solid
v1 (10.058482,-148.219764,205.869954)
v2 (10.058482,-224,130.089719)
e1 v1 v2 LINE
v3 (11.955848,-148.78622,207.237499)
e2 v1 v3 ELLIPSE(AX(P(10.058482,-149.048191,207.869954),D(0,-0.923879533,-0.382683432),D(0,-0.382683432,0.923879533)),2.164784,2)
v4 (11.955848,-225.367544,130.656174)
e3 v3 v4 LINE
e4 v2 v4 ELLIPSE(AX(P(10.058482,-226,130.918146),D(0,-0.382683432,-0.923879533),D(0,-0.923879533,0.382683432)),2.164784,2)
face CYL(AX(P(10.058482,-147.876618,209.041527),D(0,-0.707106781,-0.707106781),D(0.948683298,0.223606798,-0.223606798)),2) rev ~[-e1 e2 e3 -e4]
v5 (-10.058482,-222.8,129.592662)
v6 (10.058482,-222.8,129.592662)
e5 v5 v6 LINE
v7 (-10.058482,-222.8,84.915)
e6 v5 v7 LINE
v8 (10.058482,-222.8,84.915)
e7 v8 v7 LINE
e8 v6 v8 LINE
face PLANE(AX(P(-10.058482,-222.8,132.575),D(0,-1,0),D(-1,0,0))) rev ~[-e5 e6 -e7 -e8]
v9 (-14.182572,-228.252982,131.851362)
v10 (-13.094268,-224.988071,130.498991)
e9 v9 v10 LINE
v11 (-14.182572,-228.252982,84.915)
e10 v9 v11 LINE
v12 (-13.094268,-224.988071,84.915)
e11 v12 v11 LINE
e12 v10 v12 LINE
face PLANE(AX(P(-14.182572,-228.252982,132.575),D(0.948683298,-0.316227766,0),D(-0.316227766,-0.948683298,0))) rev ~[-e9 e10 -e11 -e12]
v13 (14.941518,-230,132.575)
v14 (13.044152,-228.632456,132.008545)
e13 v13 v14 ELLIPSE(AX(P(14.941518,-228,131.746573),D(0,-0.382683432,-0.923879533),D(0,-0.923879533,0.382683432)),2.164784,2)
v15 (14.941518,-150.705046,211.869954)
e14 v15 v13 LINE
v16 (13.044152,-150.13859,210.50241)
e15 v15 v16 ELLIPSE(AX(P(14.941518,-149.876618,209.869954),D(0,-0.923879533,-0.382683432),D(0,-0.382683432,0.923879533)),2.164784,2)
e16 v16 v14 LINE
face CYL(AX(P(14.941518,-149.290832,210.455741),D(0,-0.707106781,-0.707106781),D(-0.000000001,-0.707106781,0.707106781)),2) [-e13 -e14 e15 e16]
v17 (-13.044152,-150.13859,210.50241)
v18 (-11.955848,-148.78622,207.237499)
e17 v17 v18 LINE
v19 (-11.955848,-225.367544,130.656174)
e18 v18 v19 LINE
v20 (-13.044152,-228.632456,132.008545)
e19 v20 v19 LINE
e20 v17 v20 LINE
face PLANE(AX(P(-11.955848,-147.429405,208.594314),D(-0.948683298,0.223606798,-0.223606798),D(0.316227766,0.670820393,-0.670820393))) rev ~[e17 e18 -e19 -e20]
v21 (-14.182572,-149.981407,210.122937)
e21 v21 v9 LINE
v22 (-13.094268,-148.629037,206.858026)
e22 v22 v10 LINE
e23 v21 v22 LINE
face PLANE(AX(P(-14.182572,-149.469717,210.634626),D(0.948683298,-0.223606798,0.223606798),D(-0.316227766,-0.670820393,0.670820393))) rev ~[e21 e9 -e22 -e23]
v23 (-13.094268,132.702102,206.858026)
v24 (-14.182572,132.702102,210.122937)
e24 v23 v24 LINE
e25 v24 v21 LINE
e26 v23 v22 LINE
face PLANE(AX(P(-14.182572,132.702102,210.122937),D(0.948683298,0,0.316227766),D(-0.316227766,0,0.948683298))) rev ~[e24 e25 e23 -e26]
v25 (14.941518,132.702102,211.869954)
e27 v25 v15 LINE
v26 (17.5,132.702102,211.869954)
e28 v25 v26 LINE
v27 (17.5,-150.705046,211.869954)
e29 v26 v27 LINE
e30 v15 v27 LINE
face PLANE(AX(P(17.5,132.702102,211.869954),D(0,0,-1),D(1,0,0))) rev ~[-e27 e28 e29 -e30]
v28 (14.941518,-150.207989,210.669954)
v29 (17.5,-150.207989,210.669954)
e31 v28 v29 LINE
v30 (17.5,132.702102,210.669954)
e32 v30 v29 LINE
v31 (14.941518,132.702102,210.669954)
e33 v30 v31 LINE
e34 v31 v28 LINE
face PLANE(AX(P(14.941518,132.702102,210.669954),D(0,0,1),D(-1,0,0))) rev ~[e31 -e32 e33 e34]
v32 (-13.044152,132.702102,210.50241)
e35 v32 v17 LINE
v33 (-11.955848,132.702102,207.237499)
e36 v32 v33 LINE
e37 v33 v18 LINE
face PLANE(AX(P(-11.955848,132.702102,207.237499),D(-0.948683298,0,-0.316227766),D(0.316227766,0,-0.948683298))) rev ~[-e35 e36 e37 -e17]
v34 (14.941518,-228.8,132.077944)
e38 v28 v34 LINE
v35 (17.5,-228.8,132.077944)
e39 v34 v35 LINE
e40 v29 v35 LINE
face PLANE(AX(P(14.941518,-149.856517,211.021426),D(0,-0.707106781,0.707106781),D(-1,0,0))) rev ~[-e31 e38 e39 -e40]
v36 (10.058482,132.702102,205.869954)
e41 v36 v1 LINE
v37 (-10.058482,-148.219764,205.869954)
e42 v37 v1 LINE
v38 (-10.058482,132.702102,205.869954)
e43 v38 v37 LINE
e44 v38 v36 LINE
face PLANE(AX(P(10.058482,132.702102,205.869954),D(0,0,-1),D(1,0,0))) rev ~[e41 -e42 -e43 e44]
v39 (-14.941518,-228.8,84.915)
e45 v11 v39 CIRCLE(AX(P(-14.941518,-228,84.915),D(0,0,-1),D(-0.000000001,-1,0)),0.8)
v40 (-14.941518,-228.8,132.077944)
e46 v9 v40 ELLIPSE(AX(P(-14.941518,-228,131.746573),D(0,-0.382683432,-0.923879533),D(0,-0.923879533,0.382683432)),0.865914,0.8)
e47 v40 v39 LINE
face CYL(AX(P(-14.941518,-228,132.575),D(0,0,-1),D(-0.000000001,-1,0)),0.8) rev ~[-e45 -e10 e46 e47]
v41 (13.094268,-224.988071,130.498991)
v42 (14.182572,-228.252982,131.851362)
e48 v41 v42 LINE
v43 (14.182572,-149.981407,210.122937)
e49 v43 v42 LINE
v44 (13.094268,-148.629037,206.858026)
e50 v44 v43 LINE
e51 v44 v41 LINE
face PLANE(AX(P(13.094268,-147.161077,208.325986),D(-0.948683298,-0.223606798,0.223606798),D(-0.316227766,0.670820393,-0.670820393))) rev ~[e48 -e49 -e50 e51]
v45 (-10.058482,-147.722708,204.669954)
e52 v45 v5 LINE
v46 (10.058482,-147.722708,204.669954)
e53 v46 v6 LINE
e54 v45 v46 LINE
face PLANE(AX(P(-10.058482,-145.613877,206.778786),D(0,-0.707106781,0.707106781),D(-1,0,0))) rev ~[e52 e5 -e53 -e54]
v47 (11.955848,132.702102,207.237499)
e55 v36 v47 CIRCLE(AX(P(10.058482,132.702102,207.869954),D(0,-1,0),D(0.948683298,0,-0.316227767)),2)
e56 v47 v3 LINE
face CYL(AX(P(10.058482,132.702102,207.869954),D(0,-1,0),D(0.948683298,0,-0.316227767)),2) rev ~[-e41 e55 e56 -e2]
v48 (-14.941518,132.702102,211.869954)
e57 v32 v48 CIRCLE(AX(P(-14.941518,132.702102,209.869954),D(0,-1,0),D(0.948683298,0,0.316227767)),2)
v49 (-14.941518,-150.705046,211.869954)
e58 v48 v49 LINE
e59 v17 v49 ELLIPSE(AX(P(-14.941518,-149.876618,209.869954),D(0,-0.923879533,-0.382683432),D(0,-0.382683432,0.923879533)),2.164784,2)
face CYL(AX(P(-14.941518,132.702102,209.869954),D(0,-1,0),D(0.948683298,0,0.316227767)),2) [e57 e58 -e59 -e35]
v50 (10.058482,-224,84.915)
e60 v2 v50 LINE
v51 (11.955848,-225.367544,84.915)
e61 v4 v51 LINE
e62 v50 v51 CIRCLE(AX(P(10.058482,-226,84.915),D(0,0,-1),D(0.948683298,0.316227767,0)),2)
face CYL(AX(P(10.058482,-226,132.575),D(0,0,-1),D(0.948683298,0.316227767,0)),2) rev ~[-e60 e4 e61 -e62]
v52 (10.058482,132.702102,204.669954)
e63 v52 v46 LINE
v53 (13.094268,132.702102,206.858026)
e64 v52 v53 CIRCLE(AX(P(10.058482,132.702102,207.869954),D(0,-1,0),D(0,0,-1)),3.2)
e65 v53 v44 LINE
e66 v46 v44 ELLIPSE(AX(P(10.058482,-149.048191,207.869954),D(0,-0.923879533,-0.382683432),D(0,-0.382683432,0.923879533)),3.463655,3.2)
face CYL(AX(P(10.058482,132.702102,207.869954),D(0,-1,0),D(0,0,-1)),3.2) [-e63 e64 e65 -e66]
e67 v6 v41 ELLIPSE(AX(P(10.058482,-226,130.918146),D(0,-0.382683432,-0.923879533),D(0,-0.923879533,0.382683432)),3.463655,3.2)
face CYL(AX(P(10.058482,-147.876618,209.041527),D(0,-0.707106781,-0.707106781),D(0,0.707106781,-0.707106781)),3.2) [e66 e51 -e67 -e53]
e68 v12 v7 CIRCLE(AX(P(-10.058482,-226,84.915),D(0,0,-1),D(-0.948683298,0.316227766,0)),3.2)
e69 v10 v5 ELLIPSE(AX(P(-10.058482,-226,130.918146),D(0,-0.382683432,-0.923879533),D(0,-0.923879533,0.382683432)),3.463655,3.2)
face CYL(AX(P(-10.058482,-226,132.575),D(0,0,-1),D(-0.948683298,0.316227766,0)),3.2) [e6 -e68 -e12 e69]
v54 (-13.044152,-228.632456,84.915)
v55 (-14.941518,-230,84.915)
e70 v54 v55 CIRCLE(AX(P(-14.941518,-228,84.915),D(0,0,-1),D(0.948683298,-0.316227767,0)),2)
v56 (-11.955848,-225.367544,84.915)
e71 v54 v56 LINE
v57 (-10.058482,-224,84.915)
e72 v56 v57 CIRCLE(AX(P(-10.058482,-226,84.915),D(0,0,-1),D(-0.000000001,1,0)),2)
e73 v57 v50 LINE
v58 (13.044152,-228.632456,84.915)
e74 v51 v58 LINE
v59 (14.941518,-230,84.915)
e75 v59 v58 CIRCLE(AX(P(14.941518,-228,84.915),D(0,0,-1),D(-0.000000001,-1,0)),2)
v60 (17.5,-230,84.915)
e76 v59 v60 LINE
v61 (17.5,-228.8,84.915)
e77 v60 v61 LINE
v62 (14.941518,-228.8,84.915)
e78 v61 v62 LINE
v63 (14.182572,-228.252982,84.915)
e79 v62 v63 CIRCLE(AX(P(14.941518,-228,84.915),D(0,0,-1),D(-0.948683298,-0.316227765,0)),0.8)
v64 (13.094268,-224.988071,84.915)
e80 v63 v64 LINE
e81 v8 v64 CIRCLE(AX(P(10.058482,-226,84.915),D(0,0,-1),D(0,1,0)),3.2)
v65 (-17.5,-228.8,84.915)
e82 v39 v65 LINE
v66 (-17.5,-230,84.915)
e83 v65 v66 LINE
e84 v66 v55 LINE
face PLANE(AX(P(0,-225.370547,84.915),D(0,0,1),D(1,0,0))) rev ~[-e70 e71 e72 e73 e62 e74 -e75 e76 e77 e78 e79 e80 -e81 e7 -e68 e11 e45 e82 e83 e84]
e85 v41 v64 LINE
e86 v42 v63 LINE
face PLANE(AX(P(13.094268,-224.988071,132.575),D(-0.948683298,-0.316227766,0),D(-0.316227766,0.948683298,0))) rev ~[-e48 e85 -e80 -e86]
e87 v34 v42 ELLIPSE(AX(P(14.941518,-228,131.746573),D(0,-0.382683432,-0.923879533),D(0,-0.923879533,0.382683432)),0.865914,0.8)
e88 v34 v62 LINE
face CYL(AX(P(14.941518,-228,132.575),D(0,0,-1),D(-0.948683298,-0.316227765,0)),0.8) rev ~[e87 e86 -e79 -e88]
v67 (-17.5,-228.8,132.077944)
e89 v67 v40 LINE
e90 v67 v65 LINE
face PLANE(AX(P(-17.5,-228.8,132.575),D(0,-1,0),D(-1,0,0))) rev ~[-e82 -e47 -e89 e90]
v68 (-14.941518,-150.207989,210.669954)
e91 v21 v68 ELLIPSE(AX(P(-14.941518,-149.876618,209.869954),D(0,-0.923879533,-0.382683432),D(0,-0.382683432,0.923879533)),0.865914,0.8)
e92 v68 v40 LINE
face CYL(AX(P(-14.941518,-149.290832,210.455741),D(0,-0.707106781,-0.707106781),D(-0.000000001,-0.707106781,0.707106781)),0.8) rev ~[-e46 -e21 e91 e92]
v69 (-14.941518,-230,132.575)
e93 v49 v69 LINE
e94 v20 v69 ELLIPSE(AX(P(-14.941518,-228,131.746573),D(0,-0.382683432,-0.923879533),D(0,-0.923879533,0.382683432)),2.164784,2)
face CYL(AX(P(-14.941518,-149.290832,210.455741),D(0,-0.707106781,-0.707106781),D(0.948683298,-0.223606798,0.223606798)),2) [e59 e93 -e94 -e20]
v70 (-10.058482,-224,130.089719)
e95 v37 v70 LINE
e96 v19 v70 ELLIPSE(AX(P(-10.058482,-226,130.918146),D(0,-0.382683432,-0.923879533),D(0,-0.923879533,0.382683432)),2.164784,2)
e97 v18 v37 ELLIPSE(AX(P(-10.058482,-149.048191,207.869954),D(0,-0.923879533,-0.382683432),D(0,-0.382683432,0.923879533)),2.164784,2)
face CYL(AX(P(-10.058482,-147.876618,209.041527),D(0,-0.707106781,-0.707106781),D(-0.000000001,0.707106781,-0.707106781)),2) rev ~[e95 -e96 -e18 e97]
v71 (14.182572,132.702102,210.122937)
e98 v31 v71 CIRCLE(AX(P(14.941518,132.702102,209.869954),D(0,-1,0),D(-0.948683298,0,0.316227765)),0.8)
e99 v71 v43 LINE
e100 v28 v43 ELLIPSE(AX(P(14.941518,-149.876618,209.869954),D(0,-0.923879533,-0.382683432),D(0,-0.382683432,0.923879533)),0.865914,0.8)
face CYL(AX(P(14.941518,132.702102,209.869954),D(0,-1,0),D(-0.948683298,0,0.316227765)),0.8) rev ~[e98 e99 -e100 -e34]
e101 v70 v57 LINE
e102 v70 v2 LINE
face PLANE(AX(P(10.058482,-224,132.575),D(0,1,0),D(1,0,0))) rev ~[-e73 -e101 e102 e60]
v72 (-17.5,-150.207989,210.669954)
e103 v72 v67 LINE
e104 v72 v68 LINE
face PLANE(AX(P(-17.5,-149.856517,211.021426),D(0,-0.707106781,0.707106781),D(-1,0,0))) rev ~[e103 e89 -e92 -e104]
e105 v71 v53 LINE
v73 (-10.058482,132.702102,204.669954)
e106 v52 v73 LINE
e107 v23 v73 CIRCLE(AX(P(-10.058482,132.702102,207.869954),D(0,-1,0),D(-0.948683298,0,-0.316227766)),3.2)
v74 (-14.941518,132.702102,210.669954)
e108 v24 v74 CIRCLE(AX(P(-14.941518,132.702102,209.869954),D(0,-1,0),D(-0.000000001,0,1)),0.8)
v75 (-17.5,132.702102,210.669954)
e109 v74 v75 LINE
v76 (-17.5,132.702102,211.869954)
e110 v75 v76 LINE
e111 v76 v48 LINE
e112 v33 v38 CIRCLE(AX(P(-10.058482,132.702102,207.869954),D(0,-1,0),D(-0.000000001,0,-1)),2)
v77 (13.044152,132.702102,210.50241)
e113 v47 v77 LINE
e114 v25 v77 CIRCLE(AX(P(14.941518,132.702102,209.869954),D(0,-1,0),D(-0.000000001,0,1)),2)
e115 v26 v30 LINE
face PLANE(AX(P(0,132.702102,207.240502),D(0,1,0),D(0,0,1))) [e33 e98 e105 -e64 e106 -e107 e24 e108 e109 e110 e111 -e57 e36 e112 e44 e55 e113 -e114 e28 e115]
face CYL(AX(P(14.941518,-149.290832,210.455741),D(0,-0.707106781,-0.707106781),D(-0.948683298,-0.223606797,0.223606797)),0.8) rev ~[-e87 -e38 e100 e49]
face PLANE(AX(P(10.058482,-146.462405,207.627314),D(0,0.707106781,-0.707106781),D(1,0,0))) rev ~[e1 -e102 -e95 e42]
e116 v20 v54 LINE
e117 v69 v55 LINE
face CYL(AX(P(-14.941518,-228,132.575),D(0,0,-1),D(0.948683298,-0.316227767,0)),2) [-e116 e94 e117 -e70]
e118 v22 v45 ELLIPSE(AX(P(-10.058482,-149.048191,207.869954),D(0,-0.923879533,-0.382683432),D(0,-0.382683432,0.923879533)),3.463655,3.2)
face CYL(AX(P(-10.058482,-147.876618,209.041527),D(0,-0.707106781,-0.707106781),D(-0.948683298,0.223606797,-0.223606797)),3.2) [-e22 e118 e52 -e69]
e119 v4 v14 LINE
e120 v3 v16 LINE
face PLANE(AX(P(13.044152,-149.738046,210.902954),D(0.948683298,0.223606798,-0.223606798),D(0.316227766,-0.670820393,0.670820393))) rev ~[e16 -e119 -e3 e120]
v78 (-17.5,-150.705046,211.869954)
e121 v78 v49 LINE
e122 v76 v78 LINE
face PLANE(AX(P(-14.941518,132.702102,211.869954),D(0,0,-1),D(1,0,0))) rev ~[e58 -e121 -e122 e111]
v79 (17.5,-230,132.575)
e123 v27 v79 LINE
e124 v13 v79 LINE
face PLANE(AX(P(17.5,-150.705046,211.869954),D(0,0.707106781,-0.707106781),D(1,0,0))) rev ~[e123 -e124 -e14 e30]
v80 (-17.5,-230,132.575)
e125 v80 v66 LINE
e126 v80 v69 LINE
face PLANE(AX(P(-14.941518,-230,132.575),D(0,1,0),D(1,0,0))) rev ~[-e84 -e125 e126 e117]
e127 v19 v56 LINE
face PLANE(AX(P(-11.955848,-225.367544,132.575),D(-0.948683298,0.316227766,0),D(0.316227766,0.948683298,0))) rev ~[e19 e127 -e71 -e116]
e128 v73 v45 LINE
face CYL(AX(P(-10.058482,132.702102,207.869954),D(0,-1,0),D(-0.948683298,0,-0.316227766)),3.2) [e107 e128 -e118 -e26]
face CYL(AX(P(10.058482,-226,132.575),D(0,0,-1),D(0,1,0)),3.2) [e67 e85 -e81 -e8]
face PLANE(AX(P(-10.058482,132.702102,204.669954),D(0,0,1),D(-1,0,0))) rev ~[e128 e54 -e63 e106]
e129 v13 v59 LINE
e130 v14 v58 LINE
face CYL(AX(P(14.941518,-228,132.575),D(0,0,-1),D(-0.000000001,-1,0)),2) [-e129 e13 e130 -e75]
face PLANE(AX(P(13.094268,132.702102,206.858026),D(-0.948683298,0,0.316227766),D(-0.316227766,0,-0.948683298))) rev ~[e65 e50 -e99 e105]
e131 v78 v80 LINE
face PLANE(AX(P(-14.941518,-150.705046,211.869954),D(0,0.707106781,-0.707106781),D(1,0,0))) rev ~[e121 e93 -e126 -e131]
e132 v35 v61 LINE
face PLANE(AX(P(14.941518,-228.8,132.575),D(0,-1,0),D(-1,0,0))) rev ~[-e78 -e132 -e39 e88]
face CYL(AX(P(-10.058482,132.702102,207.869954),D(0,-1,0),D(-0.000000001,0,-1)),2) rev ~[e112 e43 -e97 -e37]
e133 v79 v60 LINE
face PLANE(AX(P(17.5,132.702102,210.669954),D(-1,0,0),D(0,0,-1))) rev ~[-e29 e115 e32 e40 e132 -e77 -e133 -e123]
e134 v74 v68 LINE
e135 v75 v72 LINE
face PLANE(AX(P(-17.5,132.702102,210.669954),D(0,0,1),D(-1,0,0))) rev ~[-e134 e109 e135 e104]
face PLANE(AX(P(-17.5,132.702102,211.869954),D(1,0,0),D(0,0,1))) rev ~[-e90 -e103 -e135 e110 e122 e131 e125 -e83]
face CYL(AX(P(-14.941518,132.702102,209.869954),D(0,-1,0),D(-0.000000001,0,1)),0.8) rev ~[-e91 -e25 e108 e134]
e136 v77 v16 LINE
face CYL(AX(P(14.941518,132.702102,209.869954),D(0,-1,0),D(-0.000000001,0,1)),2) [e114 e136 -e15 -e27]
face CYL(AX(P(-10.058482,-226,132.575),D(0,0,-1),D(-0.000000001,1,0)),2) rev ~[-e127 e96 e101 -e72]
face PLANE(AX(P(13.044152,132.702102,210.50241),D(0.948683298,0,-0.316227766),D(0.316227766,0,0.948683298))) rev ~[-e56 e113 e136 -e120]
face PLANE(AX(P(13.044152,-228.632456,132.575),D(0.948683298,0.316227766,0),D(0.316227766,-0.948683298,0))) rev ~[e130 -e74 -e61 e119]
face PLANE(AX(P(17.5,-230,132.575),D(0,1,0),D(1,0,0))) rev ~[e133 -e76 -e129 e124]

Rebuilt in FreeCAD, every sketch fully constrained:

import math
import FreeCAD as App
import Part
import Sketcher
from FreeCAD import Vector
Q = App.Units.Quantity

doc = App.newDocument("Part")
params = doc.addObject("Spreadsheet::Sheet", "Params")
for row, (alias, value) in enumerate([
    ("sketch1_radius", "2 mm"),
    ("sketch1_radius2", "0.8 mm"),
    ("sketch2_height", "47.66 mm"),
    ("sketch2_length", "112.14 mm"),
], start=1):
    params.set(f"A{row}", alias)
    params.set(f"B{row}", "=" + value)
    params.setAlias(f"B{row}", alias)

body = doc.addObject("PartDesign::Body", "Body")

sketch1 = doc.addObject("Sketcher::SketchObject", "Sketch")
body.addObject(sketch1)
sketch1.AttachmentSupport = (doc.XZ_Plane, [""])
sketch1.MapMode = "FlatFace"
sketch1.AttachmentOffset = App.Placement(Vector(0, 0, -132.702102), App.Rotation())
sketch1.addGeometry(Part.LineSegment(Vector(14.9, 211.9, 0), Vector(17.5, 211.9, 0)), False)
sketch1.addGeometry(Part.LineSegment(Vector(17.5, 211.9, 0), Vector(17.5, 210.7, 0)), False)
sketch1.addGeometry(Part.LineSegment(Vector(17.5, 210.7, 0), Vector(14.9, 210.7, 0)), False)
sketch1.addGeometry(Part.ArcOfCircle(Part.Circle(Vector(14.9, 209.9, 0), Vector(0, 0, 1), 0.8), math.radians(90), math.radians(162)), False)
sketch1.addGeometry(Part.LineSegment(Vector(14.2, 210.1, 0), Vector(13.1, 206.9, 0)), False)
sketch1.addGeometry(Part.ArcOfCircle(Part.Circle(Vector(10.1, 207.9, 0), Vector(0, 0, 1), 3.2), math.radians(-90), math.radians(-18)), False)
sketch1.addGeometry(Part.LineSegment(Vector(10.1, 204.7, 0), Vector(-10.1, 204.7, 0)), False)
sketch1.addGeometry(Part.ArcOfCircle(Part.Circle(Vector(-10.1, 207.9, 0), Vector(0, 0, 1), 3.2), math.radians(-162), math.radians(-90)), False)
sketch1.addGeometry(Part.LineSegment(Vector(-13.1, 206.9, 0), Vector(-14.2, 210.1, 0)), False)
sketch1.addGeometry(Part.ArcOfCircle(Part.Circle(Vector(-14.9, 209.9, 0), Vector(0, 0, 1), 0.8), math.radians(18), math.radians(90)), False)
sketch1.addGeometry(Part.LineSegment(Vector(-14.9, 210.7, 0), Vector(-17.5, 210.7, 0)), False)
sketch1.addGeometry(Part.LineSegment(Vector(-17.5, 210.7, 0), Vector(-17.5, 211.9, 0)), False)
sketch1.addGeometry(Part.LineSegment(Vector(-17.5, 211.9, 0), Vector(-14.9, 211.9, 0)), False)
sketch1.addGeometry(Part.ArcOfCircle(Part.Circle(Vector(-14.9, 209.9, 0), Vector(0, 0, 1), 2), math.radians(18), math.radians(90)), False)
sketch1.addGeometry(Part.LineSegment(Vector(-13, 210.5, 0), Vector(-12, 207.2, 0)), False)
sketch1.addGeometry(Part.ArcOfCircle(Part.Circle(Vector(-10.1, 207.9, 0), Vector(0, 0, 1), 2), math.radians(-162), math.radians(-90)), False)
sketch1.addGeometry(Part.LineSegment(Vector(-10.1, 205.9, 0), Vector(10.1, 205.9, 0)), False)
sketch1.addGeometry(Part.ArcOfCircle(Part.Circle(Vector(10.1, 207.9, 0), Vector(0, 0, 1), 2), math.radians(-90), math.radians(-18)), False)
sketch1.addGeometry(Part.LineSegment(Vector(12, 207.2, 0), Vector(13, 210.5, 0)), False)
sketch1.addGeometry(Part.ArcOfCircle(Part.Circle(Vector(14.9, 209.9, 0), Vector(0, 0, 1), 2), math.radians(90), math.radians(162)), False)
sketch1.addConstraint(Sketcher.Constraint("Coincident", 0, 2, 1, 1))
sketch1.addConstraint(Sketcher.Constraint("Coincident", 1, 2, 2, 1))
sketch1.addConstraint(Sketcher.Constraint("Tangent", 2, 2, 3, 1))
sketch1.addConstraint(Sketcher.Constraint("Tangent", 3, 2, 4, 1))
sketch1.addConstraint(Sketcher.Constraint("Tangent", 4, 2, 5, 2))
sketch1.addConstraint(Sketcher.Constraint("Tangent", 5, 1, 6, 1))
sketch1.addConstraint(Sketcher.Constraint("Tangent", 6, 2, 7, 2))
sketch1.addConstraint(Sketcher.Constraint("Tangent", 7, 1, 8, 1))
sketch1.addConstraint(Sketcher.Constraint("Tangent", 8, 2, 9, 1))
sketch1.addConstraint(Sketcher.Constraint("Tangent", 9, 2, 10, 1))
sketch1.addConstraint(Sketcher.Constraint("Coincident", 10, 2, 11, 1))
sketch1.addConstraint(Sketcher.Constraint("Coincident", 11, 2, 12, 1))
sketch1.addConstraint(Sketcher.Constraint("Tangent", 12, 2, 13, 2))
sketch1.addConstraint(Sketcher.Constraint("Tangent", 13, 1, 14, 1))
sketch1.addConstraint(Sketcher.Constraint("Tangent", 14, 2, 15, 1))
sketch1.addConstraint(Sketcher.Constraint("Tangent", 15, 2, 16, 1))
sketch1.addConstraint(Sketcher.Constraint("Tangent", 16, 2, 17, 1))
sketch1.addConstraint(Sketcher.Constraint("Tangent", 17, 2, 18, 1))
sketch1.addConstraint(Sketcher.Constraint("Tangent", 18, 2, 19, 2))
sketch1.addConstraint(Sketcher.Constraint("Tangent", 19, 1, 0, 1))
sketch1.addConstraint(Sketcher.Constraint("Horizontal", 0))
sketch1.addConstraint(Sketcher.Constraint("Vertical", 1))
sketch1.addConstraint(Sketcher.Constraint("Horizontal", 2))
sketch1.addConstraint(Sketcher.Constraint("Horizontal", 6))
sketch1.addConstraint(Sketcher.Constraint("Horizontal", 10))
sketch1.addConstraint(Sketcher.Constraint("Vertical", 11))
sketch1.addConstraint(Sketcher.Constraint("Horizontal", 12))
sketch1.addConstraint(Sketcher.Constraint("Horizontal", 16))
sketch1.addConstraint(Sketcher.Constraint("Coincident", 13, 3, 9, 3))
sketch1.addConstraint(Sketcher.Constraint("Coincident", 15, 3, 7, 3))
sketch1.addConstraint(Sketcher.Constraint("Coincident", 17, 3, 5, 3))
sketch1.addConstraint(Sketcher.Constraint("Coincident", 19, 3, 3, 3))
sketch1.addConstraint(Sketcher.Constraint("Equal", 5, 7))
sketch1.addConstraint(Sketcher.Constraint("Equal", 3, 9))
sketch1.addConstraint(Sketcher.Constraint("Equal", 13, 15))
sketch1.addConstraint(Sketcher.Constraint("Equal", 17, 19))
sketch1.addConstraint(Sketcher.Constraint("Symmetric", 3, 3, 9, 3, -2))
sketch1.addConstraint(Sketcher.Constraint("Parallel", 8, 14))
sketch1.addConstraint(Sketcher.Constraint("Horizontal", 4, 2, 7, 1))
sketch1.addConstraint(Sketcher.Constraint("Equal", 2, 10))
sketch1.addConstraint(Sketcher.Constraint("Radius", 13, Q("2 mm")))
sketch1.addConstraint(Sketcher.Constraint("Radius", 3, Q("0.8 mm")))
sketch1.addConstraint(Sketcher.Constraint("DistanceY", 5, 3, 3, 3, Q("2 mm")))
sketch1.addConstraint(Sketcher.Constraint("DistanceX", 7, 3, 3, 3, Q("25 mm")))
sketch1.addConstraint(Sketcher.Constraint("DistanceX", -1, 1, 0, 2, Q("17.5 mm")))
sketch1.addConstraint(Sketcher.Constraint("DistanceX", 0, 1, 0, 2, Q("2.558482 mm")))
sketch1.addConstraint(Sketcher.Constraint("DistanceY", -1, 1, 14, 2, Q("207.237499 mm")))
sketch1.setExpression("Constraints[40]", "Params.sketch1_radius")
sketch1.setExpression("Constraints[41]", "Params.sketch1_radius2")

sketch2 = doc.addObject("Sketcher::SketchObject", "Sketch001")
body.addObject(sketch2)
sketch2.AttachmentSupport = (doc.YZ_Plane, [""])
sketch2.MapMode = "FlatFace"
sketch2.addGeometry(Part.LineSegment(Vector(133, 212, 0), Vector(-151, 212, 0)), False)
sketch2.addGeometry(Part.LineSegment(Vector(-151, 212, 0), Vector(-230, 133, 0)), False)
sketch2.addGeometry(Part.LineSegment(Vector(-230, 133, 0), Vector(-230, 85, 0)), False)
sketch2.addConstraint(Sketcher.Constraint("Coincident", 0, 2, 1, 1))
sketch2.addConstraint(Sketcher.Constraint("Coincident", 1, 2, 2, 1))
sketch2.addConstraint(Sketcher.Constraint("Horizontal", 0))
sketch2.addConstraint(Sketcher.Constraint("Vertical", 2))
sketch2.addConstraint(Sketcher.Constraint("Angle", 1, Q("-135 deg")))
sketch2.addConstraint(Sketcher.Constraint("DistanceX", 1, 2, -1, 1, Q("230 mm")))
sketch2.addConstraint(Sketcher.Constraint("DistanceY", 2, 2, 2, 1, Q("47.66 mm")))
sketch2.addConstraint(Sketcher.Constraint("Distance", 1, Q("112.14 mm")))
sketch2.addConstraint(Sketcher.Constraint("DistanceY", -1, 1, 1, 2, Q("132.575 mm")))
sketch2.addConstraint(Sketcher.Constraint("DistanceX", -1, 1, 0, 1, Q("132.702102 mm")))
sketch2.setExpression("Constraints[6]", "Params.sketch2_height")
sketch2.setExpression("Constraints[7]", "Params.sketch2_length")
doc.recompute()

additivepipe = doc.addObject("PartDesign::AdditivePipe", "AdditivePipe")
body.addObject(additivepipe)
additivepipe.Profile = sketch1
additivepipe.Spine = (sketch2, ["Edge1", "Edge2", "Edge3"])
additivepipe.Transition = "Right corner"

doc.recompute()
